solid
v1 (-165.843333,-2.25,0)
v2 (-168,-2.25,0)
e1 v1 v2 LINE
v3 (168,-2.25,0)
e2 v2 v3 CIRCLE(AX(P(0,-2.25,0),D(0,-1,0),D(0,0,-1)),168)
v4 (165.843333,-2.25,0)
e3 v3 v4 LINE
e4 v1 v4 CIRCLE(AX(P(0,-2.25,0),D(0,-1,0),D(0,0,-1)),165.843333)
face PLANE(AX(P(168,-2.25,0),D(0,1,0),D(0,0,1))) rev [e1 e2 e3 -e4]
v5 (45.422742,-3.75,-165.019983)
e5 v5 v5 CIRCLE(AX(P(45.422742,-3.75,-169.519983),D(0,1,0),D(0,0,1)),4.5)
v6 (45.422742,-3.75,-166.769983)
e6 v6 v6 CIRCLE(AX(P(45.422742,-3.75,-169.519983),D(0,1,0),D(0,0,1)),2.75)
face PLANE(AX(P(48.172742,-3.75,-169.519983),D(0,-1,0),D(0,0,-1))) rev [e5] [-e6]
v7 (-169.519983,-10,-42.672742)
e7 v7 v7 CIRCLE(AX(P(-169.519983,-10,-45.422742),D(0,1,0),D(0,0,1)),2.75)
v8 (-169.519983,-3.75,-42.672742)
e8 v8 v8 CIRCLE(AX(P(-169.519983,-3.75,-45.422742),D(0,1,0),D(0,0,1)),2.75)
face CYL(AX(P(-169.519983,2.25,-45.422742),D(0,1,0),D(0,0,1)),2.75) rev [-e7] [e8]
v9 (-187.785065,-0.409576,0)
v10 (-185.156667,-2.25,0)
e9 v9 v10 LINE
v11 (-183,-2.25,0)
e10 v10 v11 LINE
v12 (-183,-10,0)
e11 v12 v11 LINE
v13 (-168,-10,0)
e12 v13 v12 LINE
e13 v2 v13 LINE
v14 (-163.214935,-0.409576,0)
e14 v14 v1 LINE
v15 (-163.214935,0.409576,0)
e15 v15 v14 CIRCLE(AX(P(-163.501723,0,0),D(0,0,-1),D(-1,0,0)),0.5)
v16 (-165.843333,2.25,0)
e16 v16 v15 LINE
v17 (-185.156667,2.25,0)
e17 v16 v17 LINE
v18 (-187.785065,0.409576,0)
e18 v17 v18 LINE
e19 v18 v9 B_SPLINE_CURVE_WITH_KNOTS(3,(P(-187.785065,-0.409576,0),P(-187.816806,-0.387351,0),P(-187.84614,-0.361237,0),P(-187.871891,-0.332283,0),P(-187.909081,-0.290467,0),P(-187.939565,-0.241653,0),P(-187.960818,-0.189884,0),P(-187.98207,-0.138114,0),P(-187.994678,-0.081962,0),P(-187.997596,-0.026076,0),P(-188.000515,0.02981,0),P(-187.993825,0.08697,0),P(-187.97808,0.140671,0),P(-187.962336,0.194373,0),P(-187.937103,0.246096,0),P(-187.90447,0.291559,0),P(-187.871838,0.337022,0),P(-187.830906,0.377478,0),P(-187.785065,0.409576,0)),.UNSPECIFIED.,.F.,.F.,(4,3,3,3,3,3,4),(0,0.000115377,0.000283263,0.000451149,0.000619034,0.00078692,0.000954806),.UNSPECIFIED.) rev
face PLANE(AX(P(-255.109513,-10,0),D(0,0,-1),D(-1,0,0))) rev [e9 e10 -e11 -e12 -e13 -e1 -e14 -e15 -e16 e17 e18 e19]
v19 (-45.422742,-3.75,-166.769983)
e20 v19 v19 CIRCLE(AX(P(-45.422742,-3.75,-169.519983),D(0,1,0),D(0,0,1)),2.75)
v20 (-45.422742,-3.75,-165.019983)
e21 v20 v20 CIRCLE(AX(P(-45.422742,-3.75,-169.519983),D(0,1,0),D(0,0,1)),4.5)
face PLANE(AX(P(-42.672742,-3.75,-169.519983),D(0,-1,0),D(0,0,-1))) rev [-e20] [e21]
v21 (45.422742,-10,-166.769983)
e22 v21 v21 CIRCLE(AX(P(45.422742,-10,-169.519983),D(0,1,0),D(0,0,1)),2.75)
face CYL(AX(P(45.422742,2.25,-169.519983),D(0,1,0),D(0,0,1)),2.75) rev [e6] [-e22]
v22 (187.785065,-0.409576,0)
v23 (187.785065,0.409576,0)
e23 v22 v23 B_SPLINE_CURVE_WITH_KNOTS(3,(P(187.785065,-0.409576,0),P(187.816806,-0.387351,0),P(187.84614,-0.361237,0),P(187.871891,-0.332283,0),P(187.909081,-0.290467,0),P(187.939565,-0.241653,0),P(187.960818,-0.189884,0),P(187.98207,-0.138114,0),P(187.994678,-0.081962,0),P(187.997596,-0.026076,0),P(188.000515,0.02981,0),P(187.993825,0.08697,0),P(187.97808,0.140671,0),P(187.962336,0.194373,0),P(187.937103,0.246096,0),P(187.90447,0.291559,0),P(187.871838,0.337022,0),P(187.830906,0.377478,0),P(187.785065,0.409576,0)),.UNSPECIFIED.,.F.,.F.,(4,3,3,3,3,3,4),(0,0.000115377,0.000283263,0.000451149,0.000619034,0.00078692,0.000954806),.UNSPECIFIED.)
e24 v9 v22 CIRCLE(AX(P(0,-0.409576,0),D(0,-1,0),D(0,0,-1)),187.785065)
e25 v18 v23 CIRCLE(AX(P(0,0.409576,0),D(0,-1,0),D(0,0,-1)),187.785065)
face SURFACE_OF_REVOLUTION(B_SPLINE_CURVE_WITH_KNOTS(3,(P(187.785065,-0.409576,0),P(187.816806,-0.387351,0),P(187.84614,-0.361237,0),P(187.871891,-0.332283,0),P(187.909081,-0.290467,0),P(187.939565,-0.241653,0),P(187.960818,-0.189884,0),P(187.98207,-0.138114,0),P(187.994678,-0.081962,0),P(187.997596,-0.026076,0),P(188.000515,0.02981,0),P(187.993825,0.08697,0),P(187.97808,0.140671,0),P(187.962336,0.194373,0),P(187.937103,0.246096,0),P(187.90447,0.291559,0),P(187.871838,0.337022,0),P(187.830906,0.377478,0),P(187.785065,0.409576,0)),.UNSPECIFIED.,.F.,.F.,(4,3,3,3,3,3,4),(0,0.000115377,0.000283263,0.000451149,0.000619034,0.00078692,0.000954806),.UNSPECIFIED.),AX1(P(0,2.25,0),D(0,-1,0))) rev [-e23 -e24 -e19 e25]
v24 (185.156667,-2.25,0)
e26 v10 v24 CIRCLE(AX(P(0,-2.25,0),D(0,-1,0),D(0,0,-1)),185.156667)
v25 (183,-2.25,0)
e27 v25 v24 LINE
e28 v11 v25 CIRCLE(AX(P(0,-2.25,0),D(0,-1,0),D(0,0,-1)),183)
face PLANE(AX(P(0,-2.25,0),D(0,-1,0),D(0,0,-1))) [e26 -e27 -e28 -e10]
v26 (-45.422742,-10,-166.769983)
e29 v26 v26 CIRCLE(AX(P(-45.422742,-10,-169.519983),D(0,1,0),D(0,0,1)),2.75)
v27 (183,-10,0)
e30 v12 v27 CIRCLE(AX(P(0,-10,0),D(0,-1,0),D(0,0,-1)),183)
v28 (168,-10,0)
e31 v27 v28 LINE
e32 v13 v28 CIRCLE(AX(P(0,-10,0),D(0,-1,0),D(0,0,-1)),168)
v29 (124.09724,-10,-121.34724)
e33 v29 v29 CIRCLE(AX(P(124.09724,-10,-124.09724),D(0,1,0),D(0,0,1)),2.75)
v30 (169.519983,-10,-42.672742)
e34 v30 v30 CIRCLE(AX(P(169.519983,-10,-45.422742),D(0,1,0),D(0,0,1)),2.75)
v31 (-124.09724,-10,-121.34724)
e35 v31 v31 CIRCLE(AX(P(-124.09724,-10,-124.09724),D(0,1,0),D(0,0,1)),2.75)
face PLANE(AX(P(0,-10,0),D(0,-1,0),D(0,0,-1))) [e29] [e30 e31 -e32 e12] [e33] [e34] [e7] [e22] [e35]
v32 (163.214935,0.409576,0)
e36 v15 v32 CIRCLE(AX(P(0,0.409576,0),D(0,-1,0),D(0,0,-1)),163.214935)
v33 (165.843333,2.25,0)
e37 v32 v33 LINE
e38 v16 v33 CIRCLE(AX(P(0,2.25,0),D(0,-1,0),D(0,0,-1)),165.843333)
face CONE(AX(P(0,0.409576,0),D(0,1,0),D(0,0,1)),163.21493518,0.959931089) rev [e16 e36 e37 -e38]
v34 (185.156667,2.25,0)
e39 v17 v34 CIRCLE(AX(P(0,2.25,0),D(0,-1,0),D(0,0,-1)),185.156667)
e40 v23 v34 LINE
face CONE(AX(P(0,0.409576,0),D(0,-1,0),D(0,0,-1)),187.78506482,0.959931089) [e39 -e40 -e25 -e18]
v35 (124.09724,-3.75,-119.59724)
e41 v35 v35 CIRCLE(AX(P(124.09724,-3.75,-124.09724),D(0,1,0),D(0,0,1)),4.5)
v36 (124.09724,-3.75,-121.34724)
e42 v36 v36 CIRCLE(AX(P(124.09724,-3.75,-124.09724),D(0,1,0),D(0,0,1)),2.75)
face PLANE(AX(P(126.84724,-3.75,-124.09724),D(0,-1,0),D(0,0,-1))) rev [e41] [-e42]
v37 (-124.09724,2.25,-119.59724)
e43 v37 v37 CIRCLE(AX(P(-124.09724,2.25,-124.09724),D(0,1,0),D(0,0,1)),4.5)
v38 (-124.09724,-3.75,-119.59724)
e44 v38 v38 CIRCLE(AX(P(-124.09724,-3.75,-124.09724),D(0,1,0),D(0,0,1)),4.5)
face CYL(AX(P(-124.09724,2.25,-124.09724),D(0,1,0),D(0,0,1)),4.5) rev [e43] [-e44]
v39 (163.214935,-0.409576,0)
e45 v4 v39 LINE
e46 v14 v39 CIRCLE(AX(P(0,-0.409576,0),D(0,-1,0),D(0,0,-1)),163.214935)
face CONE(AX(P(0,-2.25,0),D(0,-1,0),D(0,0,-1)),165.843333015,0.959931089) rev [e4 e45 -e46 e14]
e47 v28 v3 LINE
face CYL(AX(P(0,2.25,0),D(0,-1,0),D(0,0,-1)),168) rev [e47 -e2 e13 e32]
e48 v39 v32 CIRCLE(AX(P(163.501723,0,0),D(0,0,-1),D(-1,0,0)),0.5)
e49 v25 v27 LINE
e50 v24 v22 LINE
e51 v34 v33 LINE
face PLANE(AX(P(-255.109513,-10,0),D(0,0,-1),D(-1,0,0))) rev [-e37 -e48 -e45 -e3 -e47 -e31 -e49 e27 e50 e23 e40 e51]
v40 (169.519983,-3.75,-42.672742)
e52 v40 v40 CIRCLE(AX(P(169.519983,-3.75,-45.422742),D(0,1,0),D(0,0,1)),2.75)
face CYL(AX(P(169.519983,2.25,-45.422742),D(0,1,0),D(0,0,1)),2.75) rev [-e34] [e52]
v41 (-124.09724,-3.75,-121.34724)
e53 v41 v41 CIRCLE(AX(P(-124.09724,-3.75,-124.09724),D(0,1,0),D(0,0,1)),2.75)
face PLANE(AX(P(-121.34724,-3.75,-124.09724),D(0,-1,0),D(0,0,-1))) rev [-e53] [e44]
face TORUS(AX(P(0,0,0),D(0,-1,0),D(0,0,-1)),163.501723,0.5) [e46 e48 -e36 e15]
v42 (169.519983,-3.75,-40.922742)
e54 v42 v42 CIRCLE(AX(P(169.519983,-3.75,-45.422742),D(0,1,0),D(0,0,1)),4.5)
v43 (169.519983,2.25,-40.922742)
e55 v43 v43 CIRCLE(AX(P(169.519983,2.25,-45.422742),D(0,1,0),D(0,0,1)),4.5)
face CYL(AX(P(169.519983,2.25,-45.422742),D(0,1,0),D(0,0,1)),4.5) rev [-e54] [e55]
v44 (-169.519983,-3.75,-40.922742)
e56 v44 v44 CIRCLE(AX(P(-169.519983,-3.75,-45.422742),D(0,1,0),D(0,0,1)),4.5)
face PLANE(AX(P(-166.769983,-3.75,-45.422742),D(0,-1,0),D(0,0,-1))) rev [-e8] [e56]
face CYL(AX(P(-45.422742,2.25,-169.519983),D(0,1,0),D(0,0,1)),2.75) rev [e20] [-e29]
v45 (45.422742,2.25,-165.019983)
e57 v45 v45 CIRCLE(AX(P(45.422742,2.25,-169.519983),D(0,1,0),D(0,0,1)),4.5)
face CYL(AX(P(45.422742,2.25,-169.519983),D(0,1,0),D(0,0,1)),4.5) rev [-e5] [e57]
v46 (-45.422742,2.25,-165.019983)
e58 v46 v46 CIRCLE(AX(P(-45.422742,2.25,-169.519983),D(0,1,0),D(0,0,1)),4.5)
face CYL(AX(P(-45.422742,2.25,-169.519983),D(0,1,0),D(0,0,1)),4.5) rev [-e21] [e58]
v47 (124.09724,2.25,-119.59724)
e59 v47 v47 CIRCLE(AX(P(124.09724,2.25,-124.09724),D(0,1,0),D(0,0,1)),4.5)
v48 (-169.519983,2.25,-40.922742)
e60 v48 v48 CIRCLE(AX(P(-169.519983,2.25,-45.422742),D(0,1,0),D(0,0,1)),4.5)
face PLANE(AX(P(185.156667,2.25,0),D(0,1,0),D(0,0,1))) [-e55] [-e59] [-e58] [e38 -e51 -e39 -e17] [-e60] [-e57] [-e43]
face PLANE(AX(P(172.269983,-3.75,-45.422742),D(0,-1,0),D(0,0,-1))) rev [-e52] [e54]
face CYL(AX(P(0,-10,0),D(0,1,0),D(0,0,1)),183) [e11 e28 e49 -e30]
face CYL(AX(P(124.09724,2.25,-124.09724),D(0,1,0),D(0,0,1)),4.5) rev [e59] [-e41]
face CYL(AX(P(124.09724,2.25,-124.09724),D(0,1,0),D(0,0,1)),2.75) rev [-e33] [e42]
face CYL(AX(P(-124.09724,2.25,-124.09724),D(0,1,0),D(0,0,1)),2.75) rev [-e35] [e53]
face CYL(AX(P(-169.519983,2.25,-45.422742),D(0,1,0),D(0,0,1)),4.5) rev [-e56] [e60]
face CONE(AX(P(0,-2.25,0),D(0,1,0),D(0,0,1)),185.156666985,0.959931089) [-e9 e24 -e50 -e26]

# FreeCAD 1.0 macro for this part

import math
import FreeCAD as App
import Part
import Sketcher

V = App.Vector
Q = App.Units.Quantity


def add_polygon(sketch, points):
    """Adds a closed chain of lines whose ends are joined by coincident constraints."""
    first, n = sketch.GeometryCount, len(points)
    for a, b in zip(points, points[1:] + points[:1]):
        sketch.addGeometry(Part.LineSegment(App.Vector(*a, 0), App.Vector(*b, 0)), False)
    for i in range(n):
        sketch.addConstraint(Sketcher.Constraint("Coincident", first + i, 2, first + (i + 1) % n, 1))

doc = App.newDocument("Part")
body = doc.addObject("PartDesign::Body", "Body")

# Sketch on XY plane
sketch1 = doc.addObject("Sketcher::SketchObject", "Sketch")
body.addObject(sketch1)
sketch1.AttachmentSupport = (doc.XY_Plane, [""])
sketch1.MapMode = "FlatFace"
sketch1.addGeometry(Part.LineSegment(V(185.156667, 2.25, 0), V(0, 2.25, 0)), False)
sketch1.addGeometry(Part.LineSegment(V(0, 2.25, 0), V(0, -2.25, 0)), False)
sketch1.addGeometry(Part.LineSegment(V(0, -2.25, 0), V(185.156667, -2.25, 0)), False)
sketch1.addGeometry(Part.LineSegment(V(185.156667, -2.25, 0), V(187.785065, -0.409576, 0)), False)
sketch1.addGeometry(Part.BSplineCurve([V(187.785065, 0.409576, 0), V(187.830906, 0.377478, 0), V(187.871838, 0.337022, 0), V(187.90447, 0.291559, 0), V(187.937103, 0.246096, 0), V(187.962336, 0.194373, 0), V(187.97808, 0.140671, 0), V(187.993825, 0.08697, 0), V(188.000515, 0.02981, 0), V(187.997596, -0.026076, 0), V(187.994678, -0.081962, 0), V(187.98207, -0.138114, 0), V(187.960818, -0.189884, 0), V(187.939565, -0.241653, 0), V(187.909081, -0.290467, 0), V(187.871891, -0.332283, 0), V(187.84614, -0.361237, 0), V(187.816806, -0.387351, 0), V(187.785065, -0.409576, 0)], [4, 3, 3, 3, 3, 3, 4], [0, 0.000167886, 0.000335771, 0.000503657, 0.000671543, 0.000839428, 0.000954806], False, 3, [1, 1, 1, 1, 1, 1, 1, 1, 1, 1, 1, 1, 1, 1, 1, 1, 1, 1, 1], False), False)
sketch1.addGeometry(Part.LineSegment(V(187.785065, 0.409576, 0), V(185.156667, 2.25, 0)), False)
sketch1.addConstraint(Sketcher.Constraint("Block", 4))
sketch1.addConstraint(Sketcher.Constraint("Coincident", 0, 2, 1, 1))
sketch1.addConstraint(Sketcher.Constraint("Coincident", 1, 2, 2, 1))
sketch1.addConstraint(Sketcher.Constraint("Coincident", 2, 2, 3, 1))
sketch1.addConstraint(Sketcher.Constraint("Coincident", 3, 2, 4, 2))
sketch1.addConstraint(Sketcher.Constraint("Coincident", 4, 1, 5, 1))
sketch1.addConstraint(Sketcher.Constraint("Coincident", 5, 2, 0, 1))
sketch1.addConstraint(Sketcher.Constraint("Horizontal", 0))
sketch1.addConstraint(Sketcher.Constraint("Vertical", 1))
sketch1.addConstraint(Sketcher.Constraint("Horizontal", 2))
sketch1.addConstraint(Sketcher.Constraint("Symmetric", 0, 2, 1, 2, -1, 1))
sketch1.addConstraint(Sketcher.Constraint("Vertical", 2, 2, 5, 2))
sketch1.addConstraint(Sketcher.Constraint("Angle", 3, Q("35 deg")))
sketch1.addConstraint(Sketcher.Constraint("DistanceY", 1, 2, 1, 1, 4.5))
revolution = doc.addObject("PartDesign::Revolution", "Revolution")
body.addObject(revolution)
revolution.Profile = sketch1
revolution.ReferenceAxis = (sketch1, ["V_Axis"])
revolution.Angle = 360

# Sketch on XZ plane
sketch2 = doc.addObject("Sketcher::SketchObject", "Sketch001")
body.addObject(sketch2)
sketch2.AttachmentSupport = (doc.XZ_Plane, [""])
sketch2.MapMode = "FlatFace"
sketch2.AttachmentOffset = App.Placement(V(0, 0, 2.25), App.Rotation())
sketch2.addGeometry(Part.Circle(V(0, 0, 0), V(0, 0, 1), 183), False)
sketch2.addConstraint(Sketcher.Constraint("Coincident", 0, 3, -1, 1))
sketch2.addConstraint(Sketcher.Constraint("Diameter", 0, 366.0))
pad1 = doc.addObject("PartDesign::Pad", "Pad")
body.addObject(pad1)
pad1.Profile = sketch2
pad1.Length = 7.75

# Sketch on XY plane
sketch3 = doc.addObject("Sketcher::SketchObject", "Sketch002")
body.addObject(sketch3)
sketch3.AttachmentSupport = (doc.XY_Plane, [""])
sketch3.MapMode = "FlatFace"
sketch3.addGeometry(Part.LineSegment(V(165.843333, 2.25, 0), V(0, 2.25, 0)), False)
sketch3.addGeometry(Part.LineSegment(V(0, 2.25, 0), V(0, -10, 0)), False)
sketch3.addGeometry(Part.LineSegment(V(0, -10, 0), V(168, -10, 0)), False)
sketch3.addGeometry(Part.LineSegment(V(168, -10, 0), V(168, -2.25, 0)), False)
sketch3.addGeometry(Part.LineSegment(V(168, -2.25, 0), V(165.843333, -2.25, 0)), False)
sketch3.addGeometry(Part.LineSegment(V(165.843333, -2.25, 0), V(163.214935, -0.409576, 0)), False)
sketch3.addGeometry(Part.ArcOfCircle(Part.Circle(V(163.501723, 0, 0), V(0, 0, 1), 0.5), math.radians(125), math.radians(235)), False)
sketch3.addGeometry(Part.LineSegment(V(163.214935, 0.409576, 0), V(165.843333, 2.25, 0)), False)
sketch3.addConstraint(Sketcher.Constraint("Coincident", 0, 2, 1, 1))
sketch3.addConstraint(Sketcher.Constraint("Coincident", 1, 2, 2, 1))
sketch3.addConstraint(Sketcher.Constraint("Coincident", 2, 2, 3, 1))
sketch3.addConstraint(Sketcher.Constraint("Coincident", 3, 2, 4, 1))
sketch3.addConstraint(Sketcher.Constraint("Coincident", 4, 2, 5, 1))
sketch3.addConstraint(Sketcher.Constraint("Tangent", 5, 2, 6, 2))
sketch3.addConstraint(Sketcher.Constraint("Tangent", 6, 1, 7, 1))
sketch3.addConstraint(Sketcher.Constraint("Coincident", 7, 2, 0, 1))
sketch3.addConstraint(Sketcher.Constraint("Horizontal", 0))
sketch3.addConstraint(Sketcher.Constraint("Vertical", 1))
sketch3.addConstraint(Sketcher.Constraint("Horizontal", 2))
sketch3.addConstraint(Sketcher.Constraint("Vertical", 3))
sketch3.addConstraint(Sketcher.Constraint("Horizontal", 4))
sketch3.addConstraint(Sketcher.Constraint("Symmetric", 5, 2, 6, 1, -1))
sketch3.addConstraint(Sketcher.Constraint("PointOnObject", 0, 2, -2))
sketch3.addConstraint(Sketcher.Constraint("Vertical", 4, 2, 7, 2))
sketch3.addConstraint(Sketcher.Constraint("Radius", 6, 0.5))
sketch3.addConstraint(Sketcher.Constraint("DistanceX", 2, 1, 2, 2, 168.0))
sketch3.addConstraint(Sketcher.Constraint("Angle", 5, Q("145 deg")))
sketch3.addConstraint(Sketcher.Constraint("DistanceY", 1, 2, -1, 1, 10.0))
sketch3.addConstraint(Sketcher.Constraint("DistanceY", 1, 2, 1, 1, 12.25))
sketch3.addConstraint(Sketcher.Constraint("DistanceX", 0, 2, 0, 1, 165.843333))
groove = doc.addObject("PartDesign::Groove", "Groove")
body.addObject(groove)
groove.Profile = sketch3
groove.ReferenceAxis = (sketch3, ["V_Axis"])
groove.Angle = 360

# Sketch on XZ plane
sketch4 = doc.addObject("Sketcher::SketchObject", "Sketch003")
body.addObject(sketch4)
sketch4.AttachmentSupport = (doc.XZ_Plane, [""])
sketch4.MapMode = "FlatFace"
sketch4.AttachmentOffset = App.Placement(V(0, 0, -2.25), App.Rotation())
sketch4.addGeometry(Part.Circle(V(-45.422742, 169.519983, 0), V(0, 0, 1), 2.75), False)
sketch4.addGeometry(Part.Circle(V(-124.09724, 124.09724, 0), V(0, 0, 1), 2.75), False)
sketch4.addGeometry(Part.Circle(V(-169.519983, 45.422742, 0), V(0, 0, 1), 2.75), False)
sketch4.addGeometry(Part.Circle(V(45.422742, 169.519983, 0), V(0, 0, 1), 2.75), False)
sketch4.addGeometry(Part.Circle(V(124.09724, 124.09724, 0), V(0, 0, 1), 2.75), False)
sketch4.addGeometry(Part.Circle(V(169.519983, 45.422742, 0), V(0, 0, 1), 2.75), False)
sketch4.addGeometry(Part.Circle(V(-45.422742, -169.519983, 0), V(0, 0, 1), 2.75), False)
sketch4.addGeometry(Part.Circle(V(-124.09724, -124.09724, 0), V(0, 0, 1), 2.75), False)
sketch4.addGeometry(Part.Circle(V(-169.519983, -45.422742, 0), V(0, 0, 1), 2.75), False)
sketch4.addGeometry(Part.Circle(V(45.422742, -169.519983, 0), V(0, 0, 1), 2.75), False)
sketch4.addGeometry(Part.Circle(V(124.09724, -124.09724, 0), V(0, 0, 1), 2.75), False)
sketch4.addGeometry(Part.Circle(V(169.519983, -45.422742, 0), V(0, 0, 1), 2.75), False)
sketch4.addConstraint(Sketcher.Constraint("Equal", 0, 1))
sketch4.addConstraint(Sketcher.Constraint("Equal", 1, 2))
sketch4.addConstraint(Sketcher.Constraint("Equal", 2, 3))
sketch4.addConstraint(Sketcher.Constraint("Equal", 3, 4))
sketch4.addConstraint(Sketcher.Constraint("Equal", 4, 5))
sketch4.addConstraint(Sketcher.Constraint("Equal", 5, 6))
sketch4.addConstraint(Sketcher.Constraint("Equal", 6, 7))
sketch4.addConstraint(Sketcher.Constraint("Equal", 7, 8))
sketch4.addConstraint(Sketcher.Constraint("Equal", 8, 9))
sketch4.addConstraint(Sketcher.Constraint("Equal", 9, 10))
sketch4.addConstraint(Sketcher.Constraint("Equal", 10, 11))
sketch4.addConstraint(Sketcher.Constraint("Symmetric", 3, 3, 6, 3, -1, 1))
sketch4.addConstraint(Sketcher.Constraint("Symmetric", 4, 3, 7, 3, -1, 1))
sketch4.addConstraint(Sketcher.Constraint("Symmetric", 5, 3, 8, 3, -1, 1))
sketch4.addConstraint(Sketcher.Constraint("Symmetric", 0, 3, 9, 3, -1, 1))
sketch4.addConstraint(Sketcher.Constraint("Symmetric", 1, 3, 10, 3, -1, 1))
sketch4.addConstraint(Sketcher.Constraint("Symmetric", 2, 3, 11, 3, -1, 1))
sketch4.addConstraint(Sketcher.Constraint("Symmetric", 0, 3, 3, 3, -2))
sketch4.addConstraint(Sketcher.Constraint("Symmetric", 1, 3, 4, 3, -2))
sketch4.addConstraint(Sketcher.Constraint("Symmetric", 2, 3, 5, 3, -2))
sketch4.addConstraint(Sketcher.Constraint("Diameter", 0, 5.5))
sketch4.addConstraint(Sketcher.Constraint("DistanceX", 1, 3, -1, 1, 124.09724))
sketch4.addConstraint(Sketcher.Constraint("DistanceY", -1, 1, 1, 3, 124.09724))
sketch4.addConstraint(Sketcher.Constraint("DistanceX", 2, 3, 0, 3, 124.09724))
sketch4.addConstraint(Sketcher.Constraint("DistanceY", 2, 3, 0, 3, 124.09724))
sketch4.addConstraint(Sketcher.Constraint("DistanceX", 0, 3, -1, 1, 45.422742))
sketch4.addConstraint(Sketcher.Constraint("DistanceY", -1, 1, 0, 3, 169.519983))
doc.recompute()
hole = doc.addObject("PartDesign::Hole", "Hole")
body.addObject(hole)
hole.Profile = sketch4
hole.ThreadType = "None"
hole.Diameter = 5.5
hole.DepthType = "ThroughAll"
hole.HoleCutType = "Counterbore"
hole.HoleCutDiameter = 9
hole.HoleCutDepth = 6
hole.Reversed = True

# Sketch on XZ plane
sketch5 = doc.addObject("Sketcher::SketchObject", "Sketch004")
body.addObject(sketch5)
sketch5.AttachmentSupport = (doc.XZ_Plane, [""])
sketch5.MapMode = "FlatFace"
sketch5.AttachmentOffset = App.Placement(V(0, 0, -2.25), App.Rotation())
add_polygon(sketch5, [(-255.109513, 0), (-255.109513, 215.352187), (244.802058, 215.352187), (244.802058, 0)])  # lines 0-3
sketch5.addConstraint(Sketcher.Constraint("Vertical", 0))
sketch5.addConstraint(Sketcher.Constraint("Horizontal", 1))
sketch5.addConstraint(Sketcher.Constraint("Vertical", 2))
sketch5.addConstraint(Sketcher.Constraint("Horizontal", 3))
sketch5.addConstraint(Sketcher.Constraint("PointOnObject", 2, 2, -1))
sketch5.addConstraint(Sketcher.Constraint("DistanceX", 1, 1, 1, 2, 499.911571))
sketch5.addConstraint(Sketcher.Constraint("DistanceY", 0, 1, 0, 2, 215.352187))
sketch5.addConstraint(Sketcher.Constraint("DistanceX", -1, 1, 1, 2, 244.802058))
pocket1 = doc.addObject("PartDesign::Pocket", "Pocket")
body.addObject(pocket1)
pocket1.Profile = sketch5
pocket1.Type = "ThroughAll"
pocket1.Reversed = True

doc.recompute()
